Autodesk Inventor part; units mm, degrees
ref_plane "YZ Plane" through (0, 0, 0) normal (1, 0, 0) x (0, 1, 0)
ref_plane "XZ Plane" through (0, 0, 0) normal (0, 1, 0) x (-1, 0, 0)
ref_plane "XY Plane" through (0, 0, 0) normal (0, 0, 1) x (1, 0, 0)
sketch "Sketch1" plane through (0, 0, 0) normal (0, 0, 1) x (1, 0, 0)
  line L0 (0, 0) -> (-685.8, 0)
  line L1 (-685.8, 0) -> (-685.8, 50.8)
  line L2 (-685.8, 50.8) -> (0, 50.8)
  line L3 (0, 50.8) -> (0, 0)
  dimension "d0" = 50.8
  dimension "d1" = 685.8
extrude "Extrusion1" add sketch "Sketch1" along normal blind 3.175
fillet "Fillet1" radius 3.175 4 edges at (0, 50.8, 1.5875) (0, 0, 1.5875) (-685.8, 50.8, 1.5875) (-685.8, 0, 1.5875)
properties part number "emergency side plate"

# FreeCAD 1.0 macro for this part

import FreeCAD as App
import Part
import Sketcher
from FreeCAD import Vector
Q = App.Units.Quantity


def edges_at(feature, points):
    """Names of the edges that pass closest to the given points."""
    edges = feature.Shape.Edges
    near = lambda p: min(range(len(edges)), key=lambda i: edges[i].distToShape(Part.Vertex(*p))[0])
    return sorted({f"Edge{near(p) + 1}" for p in points})


def add_polygon(sketch, points):
    """Adds a closed chain of lines whose ends are joined by coincident constraints."""
    first, n = sketch.GeometryCount, len(points)
    for a, b in zip(points, points[1:] + points[:1]):
        sketch.addGeometry(Part.LineSegment(App.Vector(*a, 0), App.Vector(*b, 0)), False)
    for i in range(n):
        sketch.addConstraint(Sketcher.Constraint("Coincident", first + i, 2, first + (i + 1) % n, 1))

doc = App.newDocument("Part")
body = doc.addObject("PartDesign::Body", "Body")

# Sketch on XY plane
sketch1 = body.newObject("Sketcher::SketchObject", "Sketch")
sketch1.AttachmentSupport = (doc.getObject("XY_Plane"), [""])
sketch1.MapMode = "FlatFace"
add_polygon(sketch1, [(-686, 0), (0, 0), (0, 51), (-686, 51)])  # lines 0-3
sketch1.addConstraint([
    Sketcher.Constraint("Horizontal", 0),
    Sketcher.Constraint("Vertical", 1),
    Sketcher.Constraint("Horizontal", 2),
    Sketcher.Constraint("Vertical", 3),
    Sketcher.Constraint("Coincident", 0, 2, -1, 1),
    Sketcher.Constraint("DistanceX", 0, 1, 0, 2, Q("27 in")),
    Sketcher.Constraint("DistanceY", 1, 1, 1, 2, Q("2 in")),
])
pad1 = body.newObject("PartDesign::Pad", "Pad")
pad1.Profile = sketch1
pad1.Length = Q("0.125 in")
doc.recompute()

fillet = body.newObject("PartDesign::Fillet", "Fillet")
fillet.Base = (pad1, edges_at(pad1, [
    (0, 50.8, 1.587),
    (0, 0, 1.587),
    (-685.8, 50.8, 1.587),
    (-685.8, 0, 1.587),
]))
fillet.Radius = Q("0.125 in")

doc.recompute()
